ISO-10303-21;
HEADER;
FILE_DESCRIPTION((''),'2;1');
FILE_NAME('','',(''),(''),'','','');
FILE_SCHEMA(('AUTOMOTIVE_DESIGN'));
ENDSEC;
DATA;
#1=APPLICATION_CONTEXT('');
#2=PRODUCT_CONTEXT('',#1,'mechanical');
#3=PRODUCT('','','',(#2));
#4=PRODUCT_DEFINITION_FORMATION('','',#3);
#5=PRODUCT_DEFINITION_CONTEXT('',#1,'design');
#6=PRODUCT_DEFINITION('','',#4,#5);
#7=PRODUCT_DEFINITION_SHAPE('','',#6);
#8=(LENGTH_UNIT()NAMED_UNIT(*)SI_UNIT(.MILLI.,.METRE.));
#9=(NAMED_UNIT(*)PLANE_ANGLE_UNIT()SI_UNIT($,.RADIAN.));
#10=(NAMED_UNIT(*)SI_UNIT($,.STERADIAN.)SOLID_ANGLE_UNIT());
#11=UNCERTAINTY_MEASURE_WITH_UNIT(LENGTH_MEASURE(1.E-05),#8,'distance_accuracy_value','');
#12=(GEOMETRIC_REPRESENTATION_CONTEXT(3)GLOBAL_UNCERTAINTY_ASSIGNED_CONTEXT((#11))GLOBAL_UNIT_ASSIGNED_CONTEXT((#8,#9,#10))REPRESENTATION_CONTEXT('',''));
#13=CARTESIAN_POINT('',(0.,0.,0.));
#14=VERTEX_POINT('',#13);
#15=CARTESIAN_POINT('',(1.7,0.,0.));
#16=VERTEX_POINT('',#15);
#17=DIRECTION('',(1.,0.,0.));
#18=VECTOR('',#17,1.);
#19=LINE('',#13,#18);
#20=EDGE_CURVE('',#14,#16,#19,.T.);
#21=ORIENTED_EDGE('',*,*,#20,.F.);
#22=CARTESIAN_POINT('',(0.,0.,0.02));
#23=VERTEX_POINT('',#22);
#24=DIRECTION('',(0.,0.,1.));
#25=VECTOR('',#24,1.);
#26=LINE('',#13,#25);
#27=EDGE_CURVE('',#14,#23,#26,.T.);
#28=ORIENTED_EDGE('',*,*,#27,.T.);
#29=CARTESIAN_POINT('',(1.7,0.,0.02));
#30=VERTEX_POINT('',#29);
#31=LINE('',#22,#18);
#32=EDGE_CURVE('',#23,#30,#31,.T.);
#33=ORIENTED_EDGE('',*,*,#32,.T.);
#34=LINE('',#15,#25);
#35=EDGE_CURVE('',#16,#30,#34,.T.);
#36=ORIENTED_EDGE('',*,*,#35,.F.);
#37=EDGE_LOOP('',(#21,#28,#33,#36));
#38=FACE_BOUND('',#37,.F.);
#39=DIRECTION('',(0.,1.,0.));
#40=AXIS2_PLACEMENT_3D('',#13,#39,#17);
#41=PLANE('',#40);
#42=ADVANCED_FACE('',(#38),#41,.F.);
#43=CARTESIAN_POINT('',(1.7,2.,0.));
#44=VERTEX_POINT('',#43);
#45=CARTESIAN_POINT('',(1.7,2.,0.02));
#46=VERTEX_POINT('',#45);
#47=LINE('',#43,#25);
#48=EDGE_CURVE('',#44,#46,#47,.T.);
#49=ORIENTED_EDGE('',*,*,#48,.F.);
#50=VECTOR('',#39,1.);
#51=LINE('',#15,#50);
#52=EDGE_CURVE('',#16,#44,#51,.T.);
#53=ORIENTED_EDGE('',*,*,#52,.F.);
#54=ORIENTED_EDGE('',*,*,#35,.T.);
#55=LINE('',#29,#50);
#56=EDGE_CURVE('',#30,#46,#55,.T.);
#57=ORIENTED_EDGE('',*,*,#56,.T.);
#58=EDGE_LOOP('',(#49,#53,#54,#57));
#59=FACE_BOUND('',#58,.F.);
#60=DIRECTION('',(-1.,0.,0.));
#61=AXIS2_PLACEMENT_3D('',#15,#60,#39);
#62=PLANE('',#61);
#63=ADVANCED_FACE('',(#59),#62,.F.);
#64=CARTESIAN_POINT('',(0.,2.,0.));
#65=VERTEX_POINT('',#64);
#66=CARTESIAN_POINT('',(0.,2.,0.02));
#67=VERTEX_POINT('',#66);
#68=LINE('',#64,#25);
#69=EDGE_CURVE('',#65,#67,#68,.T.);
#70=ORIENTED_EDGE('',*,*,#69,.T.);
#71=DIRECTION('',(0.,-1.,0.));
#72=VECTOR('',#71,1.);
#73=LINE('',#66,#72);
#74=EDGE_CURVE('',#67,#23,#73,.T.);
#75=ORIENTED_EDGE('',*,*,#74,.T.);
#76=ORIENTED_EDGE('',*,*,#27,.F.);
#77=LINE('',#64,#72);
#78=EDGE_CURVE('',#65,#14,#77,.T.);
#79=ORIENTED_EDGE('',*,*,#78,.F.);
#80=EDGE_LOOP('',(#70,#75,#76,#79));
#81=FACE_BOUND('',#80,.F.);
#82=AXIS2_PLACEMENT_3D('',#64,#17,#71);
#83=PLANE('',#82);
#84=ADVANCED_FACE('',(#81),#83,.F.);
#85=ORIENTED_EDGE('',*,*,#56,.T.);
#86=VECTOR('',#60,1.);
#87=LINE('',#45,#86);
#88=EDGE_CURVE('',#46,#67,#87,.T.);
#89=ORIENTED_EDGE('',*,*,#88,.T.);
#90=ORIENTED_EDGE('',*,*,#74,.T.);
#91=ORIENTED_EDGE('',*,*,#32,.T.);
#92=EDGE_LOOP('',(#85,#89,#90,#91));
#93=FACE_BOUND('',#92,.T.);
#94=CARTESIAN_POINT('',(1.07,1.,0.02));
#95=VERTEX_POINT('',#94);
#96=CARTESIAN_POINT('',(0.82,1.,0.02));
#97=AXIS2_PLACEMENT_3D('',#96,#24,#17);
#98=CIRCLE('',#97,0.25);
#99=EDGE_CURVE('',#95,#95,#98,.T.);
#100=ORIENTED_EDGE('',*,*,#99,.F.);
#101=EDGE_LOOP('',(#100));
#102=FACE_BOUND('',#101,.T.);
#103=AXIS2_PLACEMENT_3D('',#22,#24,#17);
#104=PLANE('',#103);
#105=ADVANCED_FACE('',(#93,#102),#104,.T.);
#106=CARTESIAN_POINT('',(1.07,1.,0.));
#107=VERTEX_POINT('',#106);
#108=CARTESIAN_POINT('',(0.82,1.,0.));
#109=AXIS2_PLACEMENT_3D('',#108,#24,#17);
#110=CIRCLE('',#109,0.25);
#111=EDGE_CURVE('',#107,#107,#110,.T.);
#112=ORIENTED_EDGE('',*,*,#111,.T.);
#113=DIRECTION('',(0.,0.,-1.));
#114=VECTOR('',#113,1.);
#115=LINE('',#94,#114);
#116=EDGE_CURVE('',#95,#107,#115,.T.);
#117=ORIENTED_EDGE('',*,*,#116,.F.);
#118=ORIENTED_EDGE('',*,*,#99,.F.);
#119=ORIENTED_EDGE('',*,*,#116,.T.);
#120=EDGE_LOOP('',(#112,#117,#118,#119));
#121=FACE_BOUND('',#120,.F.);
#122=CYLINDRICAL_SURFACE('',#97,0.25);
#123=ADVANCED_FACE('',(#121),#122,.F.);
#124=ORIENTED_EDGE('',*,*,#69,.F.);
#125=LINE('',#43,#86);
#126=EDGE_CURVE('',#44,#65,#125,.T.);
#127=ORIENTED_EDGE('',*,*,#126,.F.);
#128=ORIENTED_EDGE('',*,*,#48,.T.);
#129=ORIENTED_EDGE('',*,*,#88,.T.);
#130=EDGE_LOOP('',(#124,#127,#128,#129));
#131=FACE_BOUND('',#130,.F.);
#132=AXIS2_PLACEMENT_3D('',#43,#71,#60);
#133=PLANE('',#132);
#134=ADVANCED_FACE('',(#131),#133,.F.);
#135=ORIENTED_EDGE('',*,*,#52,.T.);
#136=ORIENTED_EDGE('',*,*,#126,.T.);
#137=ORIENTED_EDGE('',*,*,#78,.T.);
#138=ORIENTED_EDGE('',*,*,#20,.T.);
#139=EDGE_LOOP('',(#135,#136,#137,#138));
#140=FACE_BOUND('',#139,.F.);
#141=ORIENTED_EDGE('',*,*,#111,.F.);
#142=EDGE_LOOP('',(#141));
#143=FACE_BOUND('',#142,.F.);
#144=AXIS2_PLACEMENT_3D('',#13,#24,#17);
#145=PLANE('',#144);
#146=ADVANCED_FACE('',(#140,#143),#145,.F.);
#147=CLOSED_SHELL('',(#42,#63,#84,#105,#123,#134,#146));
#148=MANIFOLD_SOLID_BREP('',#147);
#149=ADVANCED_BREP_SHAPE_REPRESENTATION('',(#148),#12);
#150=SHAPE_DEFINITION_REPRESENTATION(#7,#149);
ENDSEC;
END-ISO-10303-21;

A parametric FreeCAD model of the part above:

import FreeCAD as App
import Part
import Sketcher
from FreeCAD import Vector


def add_polygon(sketch, points):
    """Adds a closed chain of lines whose ends are joined by coincident constraints."""
    first, n = sketch.GeometryCount, len(points)
    for a, b in zip(points, points[1:] + points[:1]):
        sketch.addGeometry(Part.LineSegment(App.Vector(*a, 0), App.Vector(*b, 0)), False)
    for i in range(n):
        sketch.addConstraint(Sketcher.Constraint("Coincident", first + i, 2, first + (i + 1) % n, 1))

doc = App.newDocument("Part")
body = doc.addObject("PartDesign::Body", "Body")

sketch1 = doc.addObject("Sketcher::SketchObject", "Sketch")
body.addObject(sketch1)
sketch1.AttachmentSupport = (doc.XY_Plane, [""])
sketch1.MapMode = "FlatFace"
add_polygon(sketch1, [(0, 2), (0, 0), (1.7, 0), (1.7, 2)])
sketch1.addConstraint(Sketcher.Constraint("Vertical", 0))
sketch1.addConstraint(Sketcher.Constraint("Horizontal", 1))
sketch1.addConstraint(Sketcher.Constraint("Vertical", 2))
sketch1.addConstraint(Sketcher.Constraint("Horizontal", 3))
sketch1.addConstraint(Sketcher.Constraint("Coincident", 0, 2, -1, 1))
sketch1.addConstraint(Sketcher.Constraint("DistanceY", 0, 2, 0, 1, 2.0))
sketch1.addConstraint(Sketcher.Constraint("DistanceX", 1, 1, 1, 2, 1.7))
pad1 = doc.addObject("PartDesign::Pad", "Pad")
body.addObject(pad1)
pad1.Profile = sketch1
pad1.Length = 0.02

sketch2 = doc.addObject("Sketcher::SketchObject", "Sketch001")
body.addObject(sketch2)
sketch2.AttachmentSupport = (doc.XY_Plane, [""])
sketch2.MapMode = "FlatFace"
sketch2.AttachmentOffset = App.Placement(Vector(0, 0, 0.02), App.Rotation())
sketch2.addGeometry(Part.Circle(Vector(0.82, 1, 0), Vector(0, 0, 1), 0.25), False)
sketch2.addConstraint(Sketcher.Constraint("Diameter", 0, 0.5))
sketch2.addConstraint(Sketcher.Constraint("DistanceY", -1, 1, 0, 3, 1.0))
sketch2.addConstraint(Sketcher.Constraint("DistanceX", -1, 1, 0, 3, 0.82))
pocket1 = doc.addObject("PartDesign::Pocket", "Pocket")
body.addObject(pocket1)
pocket1.Profile = sketch2
pocket1.Type = "ThroughAll"

doc.recompute()
